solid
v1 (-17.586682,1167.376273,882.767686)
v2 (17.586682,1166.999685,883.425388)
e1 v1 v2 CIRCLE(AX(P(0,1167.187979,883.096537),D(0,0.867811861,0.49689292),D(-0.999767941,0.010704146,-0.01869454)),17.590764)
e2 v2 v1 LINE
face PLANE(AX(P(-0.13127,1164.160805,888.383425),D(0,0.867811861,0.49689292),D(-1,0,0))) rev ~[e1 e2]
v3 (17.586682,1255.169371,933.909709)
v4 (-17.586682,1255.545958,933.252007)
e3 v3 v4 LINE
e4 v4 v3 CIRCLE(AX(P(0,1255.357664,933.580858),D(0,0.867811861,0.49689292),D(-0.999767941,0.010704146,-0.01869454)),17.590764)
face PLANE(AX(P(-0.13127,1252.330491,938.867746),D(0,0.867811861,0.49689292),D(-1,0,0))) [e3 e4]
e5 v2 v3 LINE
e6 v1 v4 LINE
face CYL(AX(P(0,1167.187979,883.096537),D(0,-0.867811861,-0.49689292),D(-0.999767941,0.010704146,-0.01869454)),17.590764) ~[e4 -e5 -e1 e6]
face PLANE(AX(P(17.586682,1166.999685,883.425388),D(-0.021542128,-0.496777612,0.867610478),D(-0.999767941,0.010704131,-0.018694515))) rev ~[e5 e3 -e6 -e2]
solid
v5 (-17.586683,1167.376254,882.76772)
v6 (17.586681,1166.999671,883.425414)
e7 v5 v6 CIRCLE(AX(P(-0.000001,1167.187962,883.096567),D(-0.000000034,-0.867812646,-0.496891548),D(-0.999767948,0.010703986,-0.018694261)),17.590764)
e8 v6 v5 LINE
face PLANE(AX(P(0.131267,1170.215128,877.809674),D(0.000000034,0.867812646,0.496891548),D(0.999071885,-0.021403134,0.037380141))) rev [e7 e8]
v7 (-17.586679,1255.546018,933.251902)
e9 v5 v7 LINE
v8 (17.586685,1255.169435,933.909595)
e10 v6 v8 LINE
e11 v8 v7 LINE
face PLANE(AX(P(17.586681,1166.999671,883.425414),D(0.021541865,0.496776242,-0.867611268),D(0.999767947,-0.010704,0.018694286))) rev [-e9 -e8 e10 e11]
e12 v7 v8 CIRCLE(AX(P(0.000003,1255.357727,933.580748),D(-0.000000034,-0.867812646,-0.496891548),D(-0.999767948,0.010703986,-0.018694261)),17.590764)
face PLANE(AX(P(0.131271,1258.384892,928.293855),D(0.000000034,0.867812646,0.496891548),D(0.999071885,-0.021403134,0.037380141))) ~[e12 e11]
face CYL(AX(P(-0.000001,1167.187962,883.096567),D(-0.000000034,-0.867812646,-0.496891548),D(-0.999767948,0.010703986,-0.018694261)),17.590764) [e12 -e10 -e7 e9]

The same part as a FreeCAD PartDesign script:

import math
import FreeCAD as App
import Part
import Sketcher

V = App.Vector
Q = App.Units.Quantity

doc = App.newDocument("Part")
body = doc.addObject("PartDesign::Body", "Body")

# Sketch on an angled plane
sketch1 = body.newObject("Sketcher::SketchObject", "Sketch")
sketch1.Placement = App.Placement(V(0, 1259.806246, 721.340901), App.Rotation(V(-1, 0, 0), V(0, -0.49689292, 0.867811861), V(0, 0.867811861, 0.49689292), "ZXY"))
sketch1.addGeometry([
    Part.LineSegment(V(-18, 187, 0), V(18, 186, 0)),
    Part.ArcOfCircle(Part.Circle(V(0, 186, 0), V(0, 0, 1), 18), math.radians(-1), math.radians(179)),
], False)
sketch1.addConstraint([
    Sketcher.Constraint("Coincident", 0, 1, 1, 2),
    Sketcher.Constraint("Coincident", 1, 1, 0, 2),
    Sketcher.Constraint("PointOnObject", 1, 3, -2),
    Sketcher.Constraint("Radius", 1, 17.590764),
    Sketcher.Constraint("DistanceY", -1, 1, 1, 3, 186.394821),
    Sketcher.Constraint("DistanceX", 0, 1, -1, 1, 17.586682),
    Sketcher.Constraint("DistanceY", -1, 1, 1, 1, 186.015878),
])
pad1 = body.newObject("PartDesign::Pad", "Pad")
pad1.Profile = sketch1
pad1.Length = Q("4 in")
body2 = doc.addObject("PartDesign::Body", "Body001")
doc.recompute()

mirroring = doc.addObject("Part::Mirroring", "Mirroring")
mirroring.Source = body
mirroring.Base = V(0, 1211.272902, 908.338717)
mirroring.Normal = V(0.021541997, 0.496776927, -0.867610873)
body2.BaseFeature = mirroring
doc.recompute()
mirroring.Visibility = False

doc.recompute()
